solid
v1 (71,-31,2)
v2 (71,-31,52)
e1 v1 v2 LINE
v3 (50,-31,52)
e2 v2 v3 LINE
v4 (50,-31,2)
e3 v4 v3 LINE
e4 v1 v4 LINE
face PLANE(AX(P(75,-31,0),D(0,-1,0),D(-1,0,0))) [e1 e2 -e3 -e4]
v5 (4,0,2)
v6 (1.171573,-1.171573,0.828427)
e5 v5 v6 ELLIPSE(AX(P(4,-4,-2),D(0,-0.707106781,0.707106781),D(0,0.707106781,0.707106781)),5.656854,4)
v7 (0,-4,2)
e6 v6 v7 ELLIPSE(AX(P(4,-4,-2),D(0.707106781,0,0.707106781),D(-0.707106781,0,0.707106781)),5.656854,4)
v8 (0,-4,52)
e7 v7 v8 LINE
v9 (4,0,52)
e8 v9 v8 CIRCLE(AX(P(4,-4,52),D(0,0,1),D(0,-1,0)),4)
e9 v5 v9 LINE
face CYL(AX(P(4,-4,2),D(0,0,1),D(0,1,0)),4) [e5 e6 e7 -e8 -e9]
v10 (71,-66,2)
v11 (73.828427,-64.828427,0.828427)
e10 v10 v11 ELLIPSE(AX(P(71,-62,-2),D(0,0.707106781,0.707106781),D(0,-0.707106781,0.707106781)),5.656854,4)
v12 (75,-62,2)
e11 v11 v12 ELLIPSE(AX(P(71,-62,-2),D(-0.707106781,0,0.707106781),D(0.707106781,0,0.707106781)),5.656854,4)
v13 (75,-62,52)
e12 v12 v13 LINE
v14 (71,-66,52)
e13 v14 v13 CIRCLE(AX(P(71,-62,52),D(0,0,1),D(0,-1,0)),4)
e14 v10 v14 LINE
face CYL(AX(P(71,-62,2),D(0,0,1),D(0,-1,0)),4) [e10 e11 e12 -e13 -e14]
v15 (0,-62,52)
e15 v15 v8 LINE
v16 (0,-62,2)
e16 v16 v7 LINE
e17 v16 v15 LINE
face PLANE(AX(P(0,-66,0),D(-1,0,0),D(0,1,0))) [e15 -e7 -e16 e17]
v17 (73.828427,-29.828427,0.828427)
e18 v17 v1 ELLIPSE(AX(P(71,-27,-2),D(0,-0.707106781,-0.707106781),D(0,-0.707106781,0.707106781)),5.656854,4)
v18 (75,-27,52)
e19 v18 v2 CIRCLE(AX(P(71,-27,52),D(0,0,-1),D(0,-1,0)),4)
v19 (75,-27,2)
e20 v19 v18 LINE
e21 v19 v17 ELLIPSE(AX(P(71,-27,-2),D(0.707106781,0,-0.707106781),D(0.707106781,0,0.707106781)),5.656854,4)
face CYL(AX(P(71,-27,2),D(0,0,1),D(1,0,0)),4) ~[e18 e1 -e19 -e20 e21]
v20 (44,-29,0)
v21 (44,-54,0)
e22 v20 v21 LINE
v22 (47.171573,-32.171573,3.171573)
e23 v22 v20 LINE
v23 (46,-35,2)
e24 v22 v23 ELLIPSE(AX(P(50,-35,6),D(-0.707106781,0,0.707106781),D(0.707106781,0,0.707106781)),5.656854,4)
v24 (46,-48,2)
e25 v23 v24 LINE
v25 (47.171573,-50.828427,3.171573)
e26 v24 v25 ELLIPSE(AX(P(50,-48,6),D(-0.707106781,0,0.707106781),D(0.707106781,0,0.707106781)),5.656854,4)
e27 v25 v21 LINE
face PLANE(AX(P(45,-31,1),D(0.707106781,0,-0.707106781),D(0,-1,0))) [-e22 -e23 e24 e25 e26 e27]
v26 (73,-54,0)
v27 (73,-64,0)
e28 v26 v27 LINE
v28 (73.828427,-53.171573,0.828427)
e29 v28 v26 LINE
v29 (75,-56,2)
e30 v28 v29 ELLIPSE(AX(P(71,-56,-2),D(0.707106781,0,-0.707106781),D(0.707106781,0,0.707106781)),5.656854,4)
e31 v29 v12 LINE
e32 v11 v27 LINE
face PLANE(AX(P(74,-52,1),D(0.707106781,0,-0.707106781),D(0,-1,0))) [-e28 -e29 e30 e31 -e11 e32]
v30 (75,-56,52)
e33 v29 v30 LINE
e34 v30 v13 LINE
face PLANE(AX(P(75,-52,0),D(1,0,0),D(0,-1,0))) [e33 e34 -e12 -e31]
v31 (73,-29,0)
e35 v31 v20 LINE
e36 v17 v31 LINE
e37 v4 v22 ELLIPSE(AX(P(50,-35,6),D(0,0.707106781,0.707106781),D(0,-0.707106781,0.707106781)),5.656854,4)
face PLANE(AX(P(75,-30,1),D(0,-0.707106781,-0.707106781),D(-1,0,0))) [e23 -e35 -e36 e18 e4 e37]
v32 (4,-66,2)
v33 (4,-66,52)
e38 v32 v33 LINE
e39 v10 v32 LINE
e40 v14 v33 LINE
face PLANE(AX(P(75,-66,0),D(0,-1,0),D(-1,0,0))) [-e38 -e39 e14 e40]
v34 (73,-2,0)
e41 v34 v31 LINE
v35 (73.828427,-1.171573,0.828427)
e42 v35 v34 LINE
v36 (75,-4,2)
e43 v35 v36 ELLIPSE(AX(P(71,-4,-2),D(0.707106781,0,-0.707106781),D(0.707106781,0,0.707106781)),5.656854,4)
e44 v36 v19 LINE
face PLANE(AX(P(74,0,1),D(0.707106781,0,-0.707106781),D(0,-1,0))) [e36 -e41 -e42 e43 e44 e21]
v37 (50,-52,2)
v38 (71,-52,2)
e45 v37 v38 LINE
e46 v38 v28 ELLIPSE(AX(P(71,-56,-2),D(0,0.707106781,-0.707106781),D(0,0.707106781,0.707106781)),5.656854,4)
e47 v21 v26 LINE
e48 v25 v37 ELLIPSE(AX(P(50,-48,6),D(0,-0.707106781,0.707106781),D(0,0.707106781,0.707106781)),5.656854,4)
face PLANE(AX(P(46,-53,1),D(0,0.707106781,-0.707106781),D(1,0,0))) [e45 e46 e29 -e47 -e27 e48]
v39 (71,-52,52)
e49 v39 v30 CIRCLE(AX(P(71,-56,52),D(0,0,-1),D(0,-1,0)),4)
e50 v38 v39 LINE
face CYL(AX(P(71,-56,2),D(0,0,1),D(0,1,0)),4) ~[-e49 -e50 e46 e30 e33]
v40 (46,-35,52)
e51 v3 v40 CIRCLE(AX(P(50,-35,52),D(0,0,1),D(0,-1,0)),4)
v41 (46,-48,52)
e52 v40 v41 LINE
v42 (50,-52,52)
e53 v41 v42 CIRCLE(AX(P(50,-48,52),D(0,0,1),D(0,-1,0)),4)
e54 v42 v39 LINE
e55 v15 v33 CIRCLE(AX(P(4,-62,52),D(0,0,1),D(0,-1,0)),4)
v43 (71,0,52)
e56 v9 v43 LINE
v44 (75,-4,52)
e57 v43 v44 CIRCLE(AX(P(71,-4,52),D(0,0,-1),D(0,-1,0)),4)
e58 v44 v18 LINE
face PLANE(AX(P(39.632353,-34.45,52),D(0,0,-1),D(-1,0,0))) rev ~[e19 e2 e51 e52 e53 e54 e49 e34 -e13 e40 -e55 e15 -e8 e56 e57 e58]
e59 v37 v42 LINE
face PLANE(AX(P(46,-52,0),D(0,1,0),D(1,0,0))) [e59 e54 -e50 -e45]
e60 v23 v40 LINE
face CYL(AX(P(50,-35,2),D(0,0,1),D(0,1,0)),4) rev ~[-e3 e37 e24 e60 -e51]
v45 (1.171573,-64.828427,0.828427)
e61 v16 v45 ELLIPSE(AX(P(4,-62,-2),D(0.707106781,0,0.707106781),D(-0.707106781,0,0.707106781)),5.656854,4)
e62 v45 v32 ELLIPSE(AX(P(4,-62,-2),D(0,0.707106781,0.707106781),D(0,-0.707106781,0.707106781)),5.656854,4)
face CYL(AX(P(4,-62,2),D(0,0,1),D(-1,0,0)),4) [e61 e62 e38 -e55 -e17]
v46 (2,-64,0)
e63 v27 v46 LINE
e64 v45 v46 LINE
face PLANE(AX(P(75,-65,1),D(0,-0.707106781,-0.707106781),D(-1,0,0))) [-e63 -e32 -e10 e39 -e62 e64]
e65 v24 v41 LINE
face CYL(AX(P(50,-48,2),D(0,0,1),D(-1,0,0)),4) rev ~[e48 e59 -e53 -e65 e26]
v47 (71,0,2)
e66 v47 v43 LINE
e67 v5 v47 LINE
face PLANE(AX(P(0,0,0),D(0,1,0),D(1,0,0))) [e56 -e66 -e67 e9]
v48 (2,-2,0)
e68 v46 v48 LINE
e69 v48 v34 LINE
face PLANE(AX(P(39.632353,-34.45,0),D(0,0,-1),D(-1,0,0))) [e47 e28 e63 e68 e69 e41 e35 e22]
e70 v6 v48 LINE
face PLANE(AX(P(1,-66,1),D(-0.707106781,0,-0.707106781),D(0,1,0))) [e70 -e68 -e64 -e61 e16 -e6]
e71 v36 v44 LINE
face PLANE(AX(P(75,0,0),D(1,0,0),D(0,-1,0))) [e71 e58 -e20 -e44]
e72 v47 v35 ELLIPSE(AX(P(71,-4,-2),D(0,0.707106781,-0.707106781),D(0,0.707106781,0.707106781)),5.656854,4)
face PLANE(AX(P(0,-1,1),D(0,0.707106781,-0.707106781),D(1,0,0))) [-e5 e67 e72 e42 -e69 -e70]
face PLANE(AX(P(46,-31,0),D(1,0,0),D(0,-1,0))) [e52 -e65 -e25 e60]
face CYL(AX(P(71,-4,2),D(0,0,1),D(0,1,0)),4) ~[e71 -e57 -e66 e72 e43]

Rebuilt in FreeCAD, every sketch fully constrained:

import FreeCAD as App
import Part
import Sketcher

V = App.Vector
Q = App.Units.Quantity


def edges_at(feature, points):
    """Names of the edges that pass closest to the given points."""
    edges = feature.Shape.Edges
    near = lambda p: min(range(len(edges)), key=lambda i: edges[i].distToShape(Part.Vertex(*p))[0])
    return sorted({f"Edge{near(p) + 1}" for p in points})

doc = App.newDocument("Part")
body = doc.addObject("PartDesign::Body", "Body")

# Sketch on XY plane
sketch1 = body.newObject("Sketcher::SketchObject", "Sketch")
sketch1.AttachmentSupport = (doc.getObject("XY_Plane"), [""])
sketch1.MapMode = "FlatFace"
sketch1.addGeometry([
    Part.LineSegment(V(75, 0, 0), V(0, 0, 0)),  # 0
    Part.LineSegment(V(0, 0, 0), V(0, -66, 0)),  # 1
    Part.LineSegment(V(0, -66, 0), V(75, -66, 0)),  # 2
    Part.LineSegment(V(75, -66, 0), V(75, -52, 0)),  # 3
    Part.LineSegment(V(75, -52, 0), V(46, -52, 0)),  # 4
    Part.LineSegment(V(46, -52, 0), V(46, -31, 0)),  # 5
    Part.LineSegment(V(46, -31, 0), V(75, -31, 0)),  # 6
    Part.LineSegment(V(75, -31, 0), V(75, 0, 0)),  # 7
], False)
sketch1.addConstraint([
    Sketcher.Constraint("Coincident", 0, 2, 1, 1),
    Sketcher.Constraint("Coincident", 1, 2, 2, 1),
    Sketcher.Constraint("Coincident", 2, 2, 3, 1),
    Sketcher.Constraint("Coincident", 3, 2, 4, 1),
    Sketcher.Constraint("Coincident", 4, 2, 5, 1),
    Sketcher.Constraint("Coincident", 5, 2, 6, 1),
    Sketcher.Constraint("Coincident", 6, 2, 7, 1),
    Sketcher.Constraint("Coincident", 7, 2, 0, 1),
    Sketcher.Constraint("Horizontal", 0),
    Sketcher.Constraint("Vertical", 1),
    Sketcher.Constraint("Horizontal", 2),
    Sketcher.Constraint("Vertical", 3),
    Sketcher.Constraint("Horizontal", 4),
    Sketcher.Constraint("Vertical", 5),
    Sketcher.Constraint("Horizontal", 6),
    Sketcher.Constraint("Vertical", 7),
    Sketcher.Constraint("Coincident", 0, 2, -1, 1),
    Sketcher.Constraint("Vertical", 3, 2, 6, 2),
    Sketcher.Constraint("DistanceX", 0, 2, 0, 1, Q("75 mm")),
    Sketcher.Constraint("DistanceX", 4, 2, 4, 1, Q("29 mm")),
    Sketcher.Constraint("DistanceY", 1, 2, 1, 1, Q("66 mm")),
    Sketcher.Constraint("DistanceY", 3, 1, 3, 2, Q("14 mm")),
    Sketcher.Constraint("DistanceY", 5, 1, 5, 2, Q("21 mm")),
])
pad1 = body.newObject("PartDesign::Pad", "Pad")
pad1.Profile = sketch1
pad1.Length = 52
doc.recompute()

chamfer = body.newObject("PartDesign::Chamfer", "Chamfer")
chamfer.Base = (pad1, edges_at(pad1, [
    (37.5, 0, 0),
    (75, -15.5, 0),
    (60.5, -31, 0),
    (46, -41.5, 0),
    (60.5, -52, 0),
    (75, -59, 0),
    (37.5, -66, 0),
    (0, -33, 0),
]))
chamfer.Size = 2
doc.recompute()

fillet = body.newObject("PartDesign::Fillet", "Fillet")
fillet.Base = (chamfer, edges_at(chamfer, [
    (0, -66, 27),
    (75, -66, 27),
    (75, -52, 27),
    (75, -31, 27),
    (75, 0, 27),
    (46, -52, 27),
    (46, -31, 27),
    (0, 0, 27),
]))
fillet.Radius = 4

doc.recompute()
